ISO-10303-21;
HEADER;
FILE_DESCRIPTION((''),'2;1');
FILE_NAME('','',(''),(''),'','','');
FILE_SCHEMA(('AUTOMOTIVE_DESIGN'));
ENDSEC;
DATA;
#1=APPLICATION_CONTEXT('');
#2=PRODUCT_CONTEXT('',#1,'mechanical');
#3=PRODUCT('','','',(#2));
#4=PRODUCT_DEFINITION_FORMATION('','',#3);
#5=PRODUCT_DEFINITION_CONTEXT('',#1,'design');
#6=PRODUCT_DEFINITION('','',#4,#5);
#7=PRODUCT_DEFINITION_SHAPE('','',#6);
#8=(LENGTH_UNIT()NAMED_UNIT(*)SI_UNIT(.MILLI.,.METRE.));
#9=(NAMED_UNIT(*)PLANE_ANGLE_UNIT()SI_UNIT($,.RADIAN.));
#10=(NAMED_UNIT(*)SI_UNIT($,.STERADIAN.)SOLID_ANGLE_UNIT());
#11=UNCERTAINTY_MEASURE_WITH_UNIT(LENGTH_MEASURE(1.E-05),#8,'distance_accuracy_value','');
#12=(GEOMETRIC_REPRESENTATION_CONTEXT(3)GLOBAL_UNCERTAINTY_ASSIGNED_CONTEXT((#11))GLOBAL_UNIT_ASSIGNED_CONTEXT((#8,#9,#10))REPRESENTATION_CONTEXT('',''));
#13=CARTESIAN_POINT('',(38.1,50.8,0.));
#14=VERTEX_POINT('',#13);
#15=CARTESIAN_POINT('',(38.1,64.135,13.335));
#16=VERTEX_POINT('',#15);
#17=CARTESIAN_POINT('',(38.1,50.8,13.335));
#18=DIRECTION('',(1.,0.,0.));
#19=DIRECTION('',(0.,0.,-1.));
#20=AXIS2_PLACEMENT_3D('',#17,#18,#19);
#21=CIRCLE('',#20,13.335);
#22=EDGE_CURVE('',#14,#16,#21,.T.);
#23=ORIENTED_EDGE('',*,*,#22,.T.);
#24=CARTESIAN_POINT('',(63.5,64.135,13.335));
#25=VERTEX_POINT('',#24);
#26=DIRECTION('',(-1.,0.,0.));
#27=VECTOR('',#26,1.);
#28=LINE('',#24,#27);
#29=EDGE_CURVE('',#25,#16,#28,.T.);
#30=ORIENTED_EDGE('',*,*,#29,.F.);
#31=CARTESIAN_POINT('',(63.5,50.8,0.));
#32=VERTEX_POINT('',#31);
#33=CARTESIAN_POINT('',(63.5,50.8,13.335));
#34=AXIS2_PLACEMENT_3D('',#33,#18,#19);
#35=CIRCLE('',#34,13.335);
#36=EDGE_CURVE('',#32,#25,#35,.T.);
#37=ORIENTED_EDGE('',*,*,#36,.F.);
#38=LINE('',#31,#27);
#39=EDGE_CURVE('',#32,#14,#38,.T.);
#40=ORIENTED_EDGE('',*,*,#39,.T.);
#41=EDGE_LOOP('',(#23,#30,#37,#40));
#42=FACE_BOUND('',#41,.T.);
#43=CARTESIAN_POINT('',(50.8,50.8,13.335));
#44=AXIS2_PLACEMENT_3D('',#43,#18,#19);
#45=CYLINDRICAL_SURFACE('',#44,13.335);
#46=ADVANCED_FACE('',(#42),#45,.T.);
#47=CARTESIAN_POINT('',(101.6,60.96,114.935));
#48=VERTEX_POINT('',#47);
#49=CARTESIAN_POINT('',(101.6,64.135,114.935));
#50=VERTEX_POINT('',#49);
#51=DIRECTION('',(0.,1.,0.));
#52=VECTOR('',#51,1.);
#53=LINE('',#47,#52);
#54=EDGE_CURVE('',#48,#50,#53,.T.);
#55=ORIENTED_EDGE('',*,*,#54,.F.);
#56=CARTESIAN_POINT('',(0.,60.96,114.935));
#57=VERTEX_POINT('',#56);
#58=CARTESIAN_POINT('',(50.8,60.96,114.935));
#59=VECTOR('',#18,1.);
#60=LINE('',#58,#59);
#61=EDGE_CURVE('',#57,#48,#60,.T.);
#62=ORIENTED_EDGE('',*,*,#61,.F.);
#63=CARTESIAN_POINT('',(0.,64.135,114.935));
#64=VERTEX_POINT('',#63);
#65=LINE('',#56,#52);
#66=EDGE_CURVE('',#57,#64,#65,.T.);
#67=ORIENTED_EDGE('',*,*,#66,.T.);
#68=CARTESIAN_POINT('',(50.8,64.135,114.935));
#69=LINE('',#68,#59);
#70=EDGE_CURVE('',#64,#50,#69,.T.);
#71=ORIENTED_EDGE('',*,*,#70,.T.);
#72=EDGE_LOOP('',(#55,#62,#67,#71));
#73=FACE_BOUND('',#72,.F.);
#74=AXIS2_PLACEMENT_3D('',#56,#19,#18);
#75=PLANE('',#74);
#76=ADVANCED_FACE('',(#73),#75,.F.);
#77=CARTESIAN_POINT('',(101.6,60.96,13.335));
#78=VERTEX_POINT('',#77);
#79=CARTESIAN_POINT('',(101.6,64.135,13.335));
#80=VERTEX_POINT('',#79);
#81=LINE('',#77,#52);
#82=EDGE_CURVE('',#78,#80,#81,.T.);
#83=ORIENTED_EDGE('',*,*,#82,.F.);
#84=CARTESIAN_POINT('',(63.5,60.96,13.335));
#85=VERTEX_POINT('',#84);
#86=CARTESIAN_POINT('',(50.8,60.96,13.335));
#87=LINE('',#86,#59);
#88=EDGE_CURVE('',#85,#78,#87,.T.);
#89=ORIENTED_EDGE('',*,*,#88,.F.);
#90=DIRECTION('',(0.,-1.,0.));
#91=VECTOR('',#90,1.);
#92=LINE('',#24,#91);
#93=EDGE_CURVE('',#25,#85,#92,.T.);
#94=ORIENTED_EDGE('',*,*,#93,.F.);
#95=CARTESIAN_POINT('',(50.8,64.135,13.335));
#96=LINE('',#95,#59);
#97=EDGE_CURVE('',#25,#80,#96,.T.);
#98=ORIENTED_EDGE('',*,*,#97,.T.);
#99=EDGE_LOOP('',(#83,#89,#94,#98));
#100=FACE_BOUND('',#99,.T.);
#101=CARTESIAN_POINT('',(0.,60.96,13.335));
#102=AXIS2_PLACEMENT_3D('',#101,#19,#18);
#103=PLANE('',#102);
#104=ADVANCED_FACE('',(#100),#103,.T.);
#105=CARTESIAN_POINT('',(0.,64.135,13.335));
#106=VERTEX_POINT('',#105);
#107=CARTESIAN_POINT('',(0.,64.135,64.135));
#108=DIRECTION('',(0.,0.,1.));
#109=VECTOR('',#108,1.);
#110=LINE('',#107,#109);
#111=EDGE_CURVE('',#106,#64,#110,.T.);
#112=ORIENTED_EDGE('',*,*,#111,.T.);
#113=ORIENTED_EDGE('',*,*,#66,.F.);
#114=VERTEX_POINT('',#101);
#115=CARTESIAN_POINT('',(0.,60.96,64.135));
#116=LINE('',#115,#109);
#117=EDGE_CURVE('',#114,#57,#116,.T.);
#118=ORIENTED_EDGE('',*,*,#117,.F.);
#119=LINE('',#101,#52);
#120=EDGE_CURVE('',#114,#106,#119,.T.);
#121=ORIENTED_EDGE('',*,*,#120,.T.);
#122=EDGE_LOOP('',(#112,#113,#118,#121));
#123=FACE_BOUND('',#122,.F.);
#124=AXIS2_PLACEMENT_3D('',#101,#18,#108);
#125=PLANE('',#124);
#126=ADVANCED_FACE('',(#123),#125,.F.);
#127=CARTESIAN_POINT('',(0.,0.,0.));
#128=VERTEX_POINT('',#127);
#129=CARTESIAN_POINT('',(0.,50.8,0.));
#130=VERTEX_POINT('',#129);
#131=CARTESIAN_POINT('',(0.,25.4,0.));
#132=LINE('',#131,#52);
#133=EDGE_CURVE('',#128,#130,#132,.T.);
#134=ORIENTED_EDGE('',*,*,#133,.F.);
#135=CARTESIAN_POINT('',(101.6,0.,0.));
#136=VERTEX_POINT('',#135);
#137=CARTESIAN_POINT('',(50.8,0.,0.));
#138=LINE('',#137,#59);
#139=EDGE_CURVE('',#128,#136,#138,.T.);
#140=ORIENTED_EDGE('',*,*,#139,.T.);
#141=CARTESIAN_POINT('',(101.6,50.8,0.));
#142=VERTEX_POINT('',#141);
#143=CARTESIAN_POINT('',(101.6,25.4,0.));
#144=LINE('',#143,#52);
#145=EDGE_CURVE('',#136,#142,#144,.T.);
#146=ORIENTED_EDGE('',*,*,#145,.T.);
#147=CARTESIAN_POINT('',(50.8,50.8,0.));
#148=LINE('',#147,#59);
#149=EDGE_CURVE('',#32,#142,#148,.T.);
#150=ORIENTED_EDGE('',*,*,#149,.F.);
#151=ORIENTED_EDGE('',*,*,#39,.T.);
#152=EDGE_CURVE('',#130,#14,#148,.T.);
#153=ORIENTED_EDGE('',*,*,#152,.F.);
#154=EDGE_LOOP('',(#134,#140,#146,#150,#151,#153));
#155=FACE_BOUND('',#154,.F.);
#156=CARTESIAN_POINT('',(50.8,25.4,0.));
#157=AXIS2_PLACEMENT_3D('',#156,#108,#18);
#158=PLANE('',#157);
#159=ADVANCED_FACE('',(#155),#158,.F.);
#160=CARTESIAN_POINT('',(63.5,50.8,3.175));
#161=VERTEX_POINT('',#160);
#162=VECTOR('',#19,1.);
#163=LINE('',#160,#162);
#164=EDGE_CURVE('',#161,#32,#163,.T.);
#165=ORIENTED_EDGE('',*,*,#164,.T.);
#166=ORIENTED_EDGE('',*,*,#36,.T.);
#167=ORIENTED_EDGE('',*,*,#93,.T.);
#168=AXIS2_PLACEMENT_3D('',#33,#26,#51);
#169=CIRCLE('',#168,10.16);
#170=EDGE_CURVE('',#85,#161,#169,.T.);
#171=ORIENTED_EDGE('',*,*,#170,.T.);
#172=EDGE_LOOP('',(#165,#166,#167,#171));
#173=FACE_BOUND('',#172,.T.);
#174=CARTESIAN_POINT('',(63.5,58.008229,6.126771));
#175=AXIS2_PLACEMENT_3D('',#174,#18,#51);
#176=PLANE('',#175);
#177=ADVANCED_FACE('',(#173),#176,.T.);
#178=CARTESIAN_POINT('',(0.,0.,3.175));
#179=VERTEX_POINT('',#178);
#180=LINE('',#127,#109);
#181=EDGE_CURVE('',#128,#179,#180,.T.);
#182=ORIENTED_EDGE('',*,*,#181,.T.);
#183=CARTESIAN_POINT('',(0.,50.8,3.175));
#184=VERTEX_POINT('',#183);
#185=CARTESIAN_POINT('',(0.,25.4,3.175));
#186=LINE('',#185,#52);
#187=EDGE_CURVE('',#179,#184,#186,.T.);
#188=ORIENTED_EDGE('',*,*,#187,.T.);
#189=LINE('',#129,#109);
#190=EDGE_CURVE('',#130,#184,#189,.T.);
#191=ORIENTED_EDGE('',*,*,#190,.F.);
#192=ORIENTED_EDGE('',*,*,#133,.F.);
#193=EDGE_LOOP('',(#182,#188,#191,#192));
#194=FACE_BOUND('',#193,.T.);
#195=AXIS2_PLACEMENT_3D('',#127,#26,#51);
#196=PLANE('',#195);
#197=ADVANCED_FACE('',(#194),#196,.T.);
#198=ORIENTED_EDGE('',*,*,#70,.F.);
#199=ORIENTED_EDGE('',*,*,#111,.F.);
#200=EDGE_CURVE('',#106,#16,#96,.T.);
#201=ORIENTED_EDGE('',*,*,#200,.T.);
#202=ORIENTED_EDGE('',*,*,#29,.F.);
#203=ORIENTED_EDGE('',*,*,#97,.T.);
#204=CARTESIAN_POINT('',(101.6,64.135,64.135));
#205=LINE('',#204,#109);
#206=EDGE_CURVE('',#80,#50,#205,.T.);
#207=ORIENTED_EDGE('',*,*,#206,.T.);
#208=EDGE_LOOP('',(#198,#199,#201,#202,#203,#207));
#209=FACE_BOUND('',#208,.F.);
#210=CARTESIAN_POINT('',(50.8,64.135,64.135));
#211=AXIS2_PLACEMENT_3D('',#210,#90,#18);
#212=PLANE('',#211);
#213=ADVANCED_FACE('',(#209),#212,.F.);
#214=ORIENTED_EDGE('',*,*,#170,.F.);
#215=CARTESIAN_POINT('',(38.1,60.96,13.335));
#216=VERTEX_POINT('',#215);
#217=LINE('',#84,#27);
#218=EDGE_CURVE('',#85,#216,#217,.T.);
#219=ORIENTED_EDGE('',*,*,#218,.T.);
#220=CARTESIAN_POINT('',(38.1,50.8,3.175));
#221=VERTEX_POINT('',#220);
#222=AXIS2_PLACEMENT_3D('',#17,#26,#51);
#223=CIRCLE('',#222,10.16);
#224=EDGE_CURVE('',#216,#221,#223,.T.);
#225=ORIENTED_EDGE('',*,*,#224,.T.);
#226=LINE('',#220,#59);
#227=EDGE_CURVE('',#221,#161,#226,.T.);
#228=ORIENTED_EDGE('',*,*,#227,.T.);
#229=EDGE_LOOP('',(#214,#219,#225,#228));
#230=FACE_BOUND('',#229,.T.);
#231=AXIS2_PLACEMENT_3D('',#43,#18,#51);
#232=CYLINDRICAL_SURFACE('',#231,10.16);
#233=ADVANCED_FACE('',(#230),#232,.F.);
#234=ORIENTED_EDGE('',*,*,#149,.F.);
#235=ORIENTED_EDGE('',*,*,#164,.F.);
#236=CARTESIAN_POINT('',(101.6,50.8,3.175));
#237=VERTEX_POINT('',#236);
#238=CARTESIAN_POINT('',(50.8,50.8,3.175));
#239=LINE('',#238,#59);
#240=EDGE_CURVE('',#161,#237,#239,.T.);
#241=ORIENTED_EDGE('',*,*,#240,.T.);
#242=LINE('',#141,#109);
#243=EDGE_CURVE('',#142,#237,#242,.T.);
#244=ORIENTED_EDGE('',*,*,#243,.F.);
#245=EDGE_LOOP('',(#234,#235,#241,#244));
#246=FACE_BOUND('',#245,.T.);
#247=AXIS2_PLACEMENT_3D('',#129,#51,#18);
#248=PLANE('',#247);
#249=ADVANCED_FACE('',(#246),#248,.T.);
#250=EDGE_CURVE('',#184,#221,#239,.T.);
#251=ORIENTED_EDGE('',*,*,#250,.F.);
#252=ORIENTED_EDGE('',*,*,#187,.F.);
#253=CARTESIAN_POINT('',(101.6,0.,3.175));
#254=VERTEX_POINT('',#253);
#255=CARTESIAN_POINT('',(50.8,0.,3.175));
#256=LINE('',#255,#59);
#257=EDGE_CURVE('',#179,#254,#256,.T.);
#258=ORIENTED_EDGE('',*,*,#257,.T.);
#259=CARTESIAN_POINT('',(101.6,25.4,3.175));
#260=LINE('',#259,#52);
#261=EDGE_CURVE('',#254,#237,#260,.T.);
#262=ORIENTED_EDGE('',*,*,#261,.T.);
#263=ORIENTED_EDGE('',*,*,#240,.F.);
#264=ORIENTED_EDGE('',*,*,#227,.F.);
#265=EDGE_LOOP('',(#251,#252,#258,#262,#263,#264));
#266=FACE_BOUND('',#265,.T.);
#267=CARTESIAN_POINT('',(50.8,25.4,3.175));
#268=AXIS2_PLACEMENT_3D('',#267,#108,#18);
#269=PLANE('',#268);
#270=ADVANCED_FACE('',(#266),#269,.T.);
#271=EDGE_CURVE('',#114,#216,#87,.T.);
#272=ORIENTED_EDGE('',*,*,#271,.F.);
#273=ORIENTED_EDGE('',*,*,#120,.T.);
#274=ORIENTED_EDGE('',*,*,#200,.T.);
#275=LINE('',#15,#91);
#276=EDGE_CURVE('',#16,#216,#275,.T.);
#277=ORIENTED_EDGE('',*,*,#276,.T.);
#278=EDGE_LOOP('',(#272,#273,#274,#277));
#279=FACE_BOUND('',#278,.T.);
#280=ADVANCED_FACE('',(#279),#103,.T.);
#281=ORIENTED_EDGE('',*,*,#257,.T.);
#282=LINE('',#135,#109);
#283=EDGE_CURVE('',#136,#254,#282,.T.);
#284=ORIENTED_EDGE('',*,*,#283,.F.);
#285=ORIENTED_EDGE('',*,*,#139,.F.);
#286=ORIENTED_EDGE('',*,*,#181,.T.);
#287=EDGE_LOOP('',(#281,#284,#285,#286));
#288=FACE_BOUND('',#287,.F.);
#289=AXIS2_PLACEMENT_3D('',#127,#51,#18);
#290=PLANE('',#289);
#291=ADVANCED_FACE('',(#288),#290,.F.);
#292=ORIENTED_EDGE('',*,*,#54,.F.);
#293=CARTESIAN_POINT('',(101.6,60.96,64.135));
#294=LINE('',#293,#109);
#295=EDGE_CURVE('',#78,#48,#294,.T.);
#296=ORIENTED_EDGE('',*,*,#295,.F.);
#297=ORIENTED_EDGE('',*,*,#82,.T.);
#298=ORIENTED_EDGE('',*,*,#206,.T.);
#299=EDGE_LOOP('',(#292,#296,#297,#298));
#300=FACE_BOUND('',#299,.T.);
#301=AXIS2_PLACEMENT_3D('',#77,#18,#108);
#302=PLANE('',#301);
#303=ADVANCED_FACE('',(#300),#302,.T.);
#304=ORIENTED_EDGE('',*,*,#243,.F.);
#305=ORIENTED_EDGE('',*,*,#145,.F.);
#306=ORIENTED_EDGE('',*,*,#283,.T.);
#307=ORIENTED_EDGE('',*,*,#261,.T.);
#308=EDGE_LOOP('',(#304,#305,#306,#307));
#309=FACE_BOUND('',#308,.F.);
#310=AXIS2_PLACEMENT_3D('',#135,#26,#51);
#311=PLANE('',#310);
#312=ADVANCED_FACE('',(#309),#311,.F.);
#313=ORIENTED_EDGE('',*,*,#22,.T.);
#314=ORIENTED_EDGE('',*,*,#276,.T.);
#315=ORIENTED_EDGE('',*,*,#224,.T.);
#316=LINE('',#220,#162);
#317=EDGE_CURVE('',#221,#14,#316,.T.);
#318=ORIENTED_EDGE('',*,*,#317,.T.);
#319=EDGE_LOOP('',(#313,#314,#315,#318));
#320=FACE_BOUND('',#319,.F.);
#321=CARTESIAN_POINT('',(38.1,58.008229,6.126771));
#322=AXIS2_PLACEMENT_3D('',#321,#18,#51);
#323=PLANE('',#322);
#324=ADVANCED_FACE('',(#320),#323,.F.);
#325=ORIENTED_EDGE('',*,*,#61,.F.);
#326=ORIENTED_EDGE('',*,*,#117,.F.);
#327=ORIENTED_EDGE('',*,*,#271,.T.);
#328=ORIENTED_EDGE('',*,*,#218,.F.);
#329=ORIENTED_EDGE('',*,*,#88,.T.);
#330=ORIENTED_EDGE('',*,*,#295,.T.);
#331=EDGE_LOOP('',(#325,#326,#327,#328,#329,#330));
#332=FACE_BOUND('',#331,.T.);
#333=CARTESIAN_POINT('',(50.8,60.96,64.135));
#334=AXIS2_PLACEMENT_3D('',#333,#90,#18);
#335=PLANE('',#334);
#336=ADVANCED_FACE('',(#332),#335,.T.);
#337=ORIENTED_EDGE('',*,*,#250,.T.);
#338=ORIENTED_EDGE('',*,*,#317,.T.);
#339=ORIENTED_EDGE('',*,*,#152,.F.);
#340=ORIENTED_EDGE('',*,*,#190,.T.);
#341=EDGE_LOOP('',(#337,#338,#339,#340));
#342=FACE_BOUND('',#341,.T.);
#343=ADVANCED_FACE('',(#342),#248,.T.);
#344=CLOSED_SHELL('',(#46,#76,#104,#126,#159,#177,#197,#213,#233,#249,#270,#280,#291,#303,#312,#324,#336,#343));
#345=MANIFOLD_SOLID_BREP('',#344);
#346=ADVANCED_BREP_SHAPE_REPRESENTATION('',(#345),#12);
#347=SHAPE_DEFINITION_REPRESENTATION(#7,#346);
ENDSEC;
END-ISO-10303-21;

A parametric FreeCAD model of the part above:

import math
import FreeCAD as App
import Part
import Sketcher
Q = App.Units.Quantity


def add_polygon(sketch, points):
    """Adds a closed chain of lines whose ends are joined by coincident constraints."""
    first, n = sketch.GeometryCount, len(points)
    for a, b in zip(points, points[1:] + points[:1]):
        sketch.addGeometry(Part.LineSegment(App.Vector(*a, 0), App.Vector(*b, 0)), False)
    for i in range(n):
        sketch.addConstraint(Sketcher.Constraint("Coincident", first + i, 2, first + (i + 1) % n, 1))

doc = App.newDocument("Part")
params = doc.addObject("Spreadsheet::Sheet", "Params")
for row, (alias, value) in enumerate([
    ("sketch1_width", "4 in"),
    ("sketch1_height", "2 in"),
    ("pad1_length", "0.125 in"),
    ("sketch2_radius", "0.4 in"),
    ("sketch2_radius2", "0.525 in"),
    ("pad2_length", "0.5 in"),
    ("pad2_length2", "0.5 in"),
    ("sketch3_width", "4 in"),
    ("pad3_length", "0.125 in"),
], start=1):
    params.set(f"A{row}", alias)
    params.set(f"B{row}", "=" + value)
    params.setAlias(f"B{row}", alias)

body = doc.addObject("PartDesign::Body", "Body")

# Sketch on XY plane
sketch1 = body.newObject("Sketcher::SketchObject", "Sketch")
sketch1.AttachmentSupport = (doc.getObject("XY_Plane"), [""])
sketch1.MapMode = "FlatFace"
add_polygon(sketch1, [(0, 50.8), (0, 0), (101.6, 0), (101.6, 50.8)])  # lines 0-3
sketch1.addConstraint(Sketcher.Constraint("Vertical", 0))
sketch1.addConstraint(Sketcher.Constraint("Horizontal", 1))
sketch1.addConstraint(Sketcher.Constraint("Vertical", 2))
sketch1.addConstraint(Sketcher.Constraint("Horizontal", 3))
sketch1.addConstraint(Sketcher.Constraint("Coincident", 0, 2, -1, 1))
sketch1.addConstraint(Sketcher.Constraint("DistanceX", 1, 1, 1, 2, Q("4 in")))
sketch1.addConstraint(Sketcher.Constraint("DistanceY", 0, 2, 0, 1, Q("2 in")))
sketch1.setExpression("Constraints[9]", "Params.sketch1_width")
sketch1.setExpression("Constraints[10]", "Params.sketch1_height")
pad1 = body.newObject("PartDesign::Pad", "Pad")
pad1.Profile = sketch1
pad1.setExpression("Length", "Params.pad1_length")

# Sketch on YZ plane
sketch2 = body.newObject("Sketcher::SketchObject", "Sketch001")
sketch2.AttachmentSupport = (doc.getObject("YZ_Plane"), [""])
sketch2.MapMode = "FlatFace"
sketch2.AttachmentOffset = App.Placement(App.Vector(0, 0, 2 * 25.4), App.Rotation())
sketch2.addGeometry(Part.ArcOfCircle(Part.Circle(App.Vector(50.8, 13.335, 0), App.Vector(0, 0, 1), 10.16), math.radians(-90), math.radians(0)), False)
sketch2.addGeometry(Part.LineSegment(App.Vector(50.8, 3.175, 0), App.Vector(50.8, 0, 0)), False)
sketch2.addGeometry(Part.ArcOfCircle(Part.Circle(App.Vector(50.8, 13.335, 0), App.Vector(0, 0, 1), 13.335), math.radians(-90), math.radians(0)), False)
sketch2.addGeometry(Part.LineSegment(App.Vector(64.135, 13.335, 0), App.Vector(60.96, 13.335, 0)), False)
sketch2.addConstraint(Sketcher.Constraint("Coincident", 0, 1, 1, 1))
sketch2.addConstraint(Sketcher.Constraint("Coincident", 1, 2, 2, 1))
sketch2.addConstraint(Sketcher.Constraint("Coincident", 2, 2, 3, 1))
sketch2.addConstraint(Sketcher.Constraint("Coincident", 3, 2, 0, 2))
sketch2.addConstraint(Sketcher.Constraint("Vertical", 1))
sketch2.addConstraint(Sketcher.Constraint("Horizontal", 3))
sketch2.addConstraint(Sketcher.Constraint("Coincident", 2, 3, 0, 3))
sketch2.addConstraint(Sketcher.Constraint("PointOnObject", 1, 2, -1))
sketch2.addConstraint(Sketcher.Constraint("Horizontal", 0, 3, 2, 2))
sketch2.addConstraint(Sketcher.Constraint("Vertical", 2, 3, 0, 1))
sketch2.addConstraint(Sketcher.Constraint("Radius", 0, Q("0.4 in")))
sketch2.addConstraint(Sketcher.Constraint("DistanceX", -1, 1, 0, 3, Q("2 in")))
sketch2.addConstraint(Sketcher.Constraint("Radius", 2, Q("0.525 in")))
sketch2.setExpression("Constraints[10]", "Params.sketch2_radius")
sketch2.setExpression("Constraints[12]", "Params.sketch2_radius2")
pad2 = body.newObject("PartDesign::Pad", "Pad001")
pad2.Profile = sketch2
pad2.Type = "TwoLengths"
pad2.setExpression("Length", "Params.pad2_length")
pad2.setExpression("Length2", "Params.pad2_length2")

# Sketch on XZ plane
sketch3 = body.newObject("Sketcher::SketchObject", "Sketch002")
sketch3.AttachmentSupport = (doc.getObject("XZ_Plane"), [""])
sketch3.MapMode = "FlatFace"
sketch3.AttachmentOffset = App.Placement(App.Vector(0, 0, -2.4 * 25.4), App.Rotation())
add_polygon(sketch3, [(0, 114.935), (0, 13.335), (101.6, 13.335), (101.6, 114.935)])  # lines 0-3
sketch3.addConstraint(Sketcher.Constraint("Vertical", 0))
sketch3.addConstraint(Sketcher.Constraint("Horizontal", 1))
sketch3.addConstraint(Sketcher.Constraint("Vertical", 2))
sketch3.addConstraint(Sketcher.Constraint("Horizontal", 3))
sketch3.addConstraint(Sketcher.Constraint("PointOnObject", 0, 2, -2))
sketch3.addConstraint(Sketcher.Constraint("Equal", 3, 0))
sketch3.addConstraint(Sketcher.Constraint("DistanceX", 1, 1, 1, 2, Q("4 in")))
sketch3.addConstraint(Sketcher.Constraint("DistanceY", -1, 1, 0, 2, Q("0.525 in")))
sketch3.setExpression("Constraints[10]", "Params.sketch3_width")
pad3 = body.newObject("PartDesign::Pad", "Pad002")
pad3.Profile = sketch3
pad3.setExpression("Length", "Params.pad3_length")
pad3.Reversed = True

doc.recompute()
